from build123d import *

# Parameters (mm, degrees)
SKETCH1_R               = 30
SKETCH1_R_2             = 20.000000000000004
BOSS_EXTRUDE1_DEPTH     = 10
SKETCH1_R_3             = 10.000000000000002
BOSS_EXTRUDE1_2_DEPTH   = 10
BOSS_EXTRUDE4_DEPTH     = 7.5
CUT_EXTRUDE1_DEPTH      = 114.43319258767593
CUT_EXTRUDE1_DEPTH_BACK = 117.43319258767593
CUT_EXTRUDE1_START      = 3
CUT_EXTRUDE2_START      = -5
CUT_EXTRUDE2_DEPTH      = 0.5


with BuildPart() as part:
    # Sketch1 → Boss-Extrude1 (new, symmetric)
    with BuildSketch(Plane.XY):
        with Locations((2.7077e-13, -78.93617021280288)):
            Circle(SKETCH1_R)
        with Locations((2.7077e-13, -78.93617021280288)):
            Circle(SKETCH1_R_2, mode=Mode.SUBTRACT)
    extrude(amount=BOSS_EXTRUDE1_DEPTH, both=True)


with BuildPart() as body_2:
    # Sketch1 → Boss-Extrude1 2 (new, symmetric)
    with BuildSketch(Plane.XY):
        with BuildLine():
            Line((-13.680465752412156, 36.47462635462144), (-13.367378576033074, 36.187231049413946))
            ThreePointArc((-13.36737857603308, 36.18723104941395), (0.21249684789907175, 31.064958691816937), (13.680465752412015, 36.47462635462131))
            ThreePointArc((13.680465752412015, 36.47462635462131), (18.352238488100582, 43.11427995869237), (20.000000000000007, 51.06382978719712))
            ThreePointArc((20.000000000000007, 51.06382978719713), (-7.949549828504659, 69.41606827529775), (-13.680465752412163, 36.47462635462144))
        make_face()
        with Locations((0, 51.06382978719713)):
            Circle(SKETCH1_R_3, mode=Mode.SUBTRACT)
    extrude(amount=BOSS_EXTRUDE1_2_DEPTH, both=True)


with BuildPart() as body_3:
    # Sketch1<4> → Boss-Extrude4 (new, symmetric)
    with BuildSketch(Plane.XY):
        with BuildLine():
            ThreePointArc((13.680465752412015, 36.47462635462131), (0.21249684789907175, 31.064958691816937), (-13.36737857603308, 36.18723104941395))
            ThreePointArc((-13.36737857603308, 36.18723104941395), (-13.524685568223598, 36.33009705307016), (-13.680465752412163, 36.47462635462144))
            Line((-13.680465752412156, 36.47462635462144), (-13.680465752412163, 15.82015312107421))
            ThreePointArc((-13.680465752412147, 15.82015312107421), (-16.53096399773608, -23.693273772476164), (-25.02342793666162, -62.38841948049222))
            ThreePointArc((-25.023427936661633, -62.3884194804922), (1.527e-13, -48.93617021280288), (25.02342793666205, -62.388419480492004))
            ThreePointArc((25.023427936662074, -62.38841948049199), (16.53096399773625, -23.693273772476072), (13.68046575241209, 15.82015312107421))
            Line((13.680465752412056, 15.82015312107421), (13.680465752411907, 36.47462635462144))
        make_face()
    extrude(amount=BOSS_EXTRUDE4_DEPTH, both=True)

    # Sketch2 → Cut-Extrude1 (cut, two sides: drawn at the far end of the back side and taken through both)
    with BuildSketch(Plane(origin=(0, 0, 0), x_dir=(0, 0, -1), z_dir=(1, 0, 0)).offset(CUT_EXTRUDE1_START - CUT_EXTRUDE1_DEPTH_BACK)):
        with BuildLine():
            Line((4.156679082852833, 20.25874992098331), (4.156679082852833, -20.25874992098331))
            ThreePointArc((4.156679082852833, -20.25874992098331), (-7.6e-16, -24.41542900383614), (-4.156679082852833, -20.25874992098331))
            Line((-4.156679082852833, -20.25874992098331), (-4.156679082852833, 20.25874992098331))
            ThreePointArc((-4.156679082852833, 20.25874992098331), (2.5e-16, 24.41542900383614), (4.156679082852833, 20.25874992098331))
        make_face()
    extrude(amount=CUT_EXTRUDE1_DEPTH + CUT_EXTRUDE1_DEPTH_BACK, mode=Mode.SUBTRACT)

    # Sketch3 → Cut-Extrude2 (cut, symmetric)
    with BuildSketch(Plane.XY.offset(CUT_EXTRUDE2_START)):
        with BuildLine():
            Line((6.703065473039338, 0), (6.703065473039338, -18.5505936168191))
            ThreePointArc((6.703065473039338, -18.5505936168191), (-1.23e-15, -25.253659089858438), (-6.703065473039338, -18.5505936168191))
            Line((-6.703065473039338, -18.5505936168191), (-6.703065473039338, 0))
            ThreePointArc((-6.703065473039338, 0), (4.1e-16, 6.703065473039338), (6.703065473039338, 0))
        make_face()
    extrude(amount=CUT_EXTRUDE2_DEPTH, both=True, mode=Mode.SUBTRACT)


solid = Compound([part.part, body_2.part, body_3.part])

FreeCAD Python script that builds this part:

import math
import FreeCAD as App
import Part
import Sketcher
from FreeCAD import Vector
Q = App.Units.Quantity

doc = App.newDocument("Part")
body = doc.addObject("PartDesign::Body", "Body")

# Sketch on XY plane
sketch1 = body.newObject("Sketcher::SketchObject", "Sketch")
sketch1.AttachmentSupport = (doc.getObject("XY_Plane"), [""])
sketch1.MapMode = "FlatFace"
sketch1.addGeometry([
    Part.Circle(Vector(0, -79, 0), Vector(0, 0, 1), 30),
    Part.Circle(Vector(0, -79, 0), Vector(0, 0, 1), 20),
], False)
sketch1.addConstraint([
    Sketcher.Constraint("Coincident", 1, 3, 0, 3),
    Sketcher.Constraint("PointOnObject", 0, 3, -2),
    Sketcher.Constraint("Diameter", 0, Q("60 mm")),
    Sketcher.Constraint("Diameter", 1, Q("40 mm")),
    Sketcher.Constraint("DistanceY", 0, 3, -1, 1, Q("78.93617 mm")),
])
pad1 = body.newObject("PartDesign::Pad", "Pad")
pad1.Profile = sketch1
pad1.Length = 20
pad1.Midplane = True
body2 = doc.addObject("PartDesign::Body", "Body001")

# Sketch on XY plane
sketch2 = body2.newObject("Sketcher::SketchObject", "Sketch001")
sketch2.AttachmentSupport = (doc.getObject("XY_Plane001"), [""])
sketch2.MapMode = "FlatFace"
sketch2.addGeometry([
    Part.LineSegment(Vector(-13.68, 36.47, 0), Vector(-13.37, 36.19, 0)),
    Part.ArcOfCircle(Part.Circle(Vector(0, 51.06, 0), Vector(0, 0, 1), 20), math.radians(-132), math.radians(227)),
    Part.Circle(Vector(0, 51.06, 0), Vector(0, 0, 1), 10),
], False)
sketch2.addConstraint([
    Sketcher.Constraint("Coincident", 0, 1, 1, 2),
    Sketcher.Constraint("Coincident", 1, 1, 0, 2),
    Sketcher.Constraint("Coincident", 2, 3, 1, 3),
    Sketcher.Constraint("PointOnObject", 1, 3, -2),
    Sketcher.Constraint("Diameter", 2, Q("20 mm")),
    Sketcher.Constraint("Radius", 1, Q("20 mm")),
    Sketcher.Constraint("DistanceY", 1, 1, 1, 3, Q("14.876599 mm")),
    Sketcher.Constraint("DistanceY", -1, 1, 1, 3, Q("51.06383 mm")),
    Sketcher.Constraint("Distance", 0, Q("0.424994 mm")),
])
pad2 = body2.newObject("PartDesign::Pad", "Pad001")
pad2.Profile = sketch2
pad2.Length = 20
pad2.Midplane = True
body3 = doc.addObject("PartDesign::Body", "Body002")

# Sketch on XY plane
sketch3 = body3.newObject("Sketcher::SketchObject", "Sketch002")
sketch3.AttachmentSupport = (doc.getObject("XY_Plane002"), [""])
sketch3.MapMode = "FlatFace"
sketch3.addGeometry([
    Part.ArcOfCircle(Part.Circle(Vector(0, 51, 0), Vector(0, 0, 1), 20), math.radians(-133), math.radians(-47)),  # 0
    Part.LineSegment(Vector(-14, 36, 0), Vector(-14, 16, 0)),  # 1
    Part.ArcOfCircle(Part.Circle(Vector(-289, 16, 0), Vector(0, 0, 1), 275), math.radians(-16.5), math.radians(0)),  # 2
    Part.ArcOfCircle(Part.Circle(Vector(0, -79, 0), Vector(0, 0, 1), 30), math.radians(33), math.radians(147)),  # 3
    Part.ArcOfCircle(Part.Circle(Vector(289, 16, 0), Vector(0, 0, 1), 275), math.radians(180), math.radians(196.5)),  # 4
    Part.LineSegment(Vector(14, 16, 0), Vector(14, 36, 0)),  # 5
], False)
sketch3.addConstraint([
    Sketcher.Constraint("Coincident", 0, 1, 1, 1),
    Sketcher.Constraint("Tangent", 1, 2, 2, 2),
    Sketcher.Constraint("Coincident", 2, 1, 3, 2),
    Sketcher.Constraint("Coincident", 3, 1, 4, 2),
    Sketcher.Constraint("Tangent", 4, 1, 5, 1),
    Sketcher.Constraint("Coincident", 5, 2, 0, 2),
    Sketcher.Constraint("Vertical", 1),
    Sketcher.Constraint("Vertical", 5),
    Sketcher.Constraint("Equal", 2, 4),
    Sketcher.Constraint("Symmetric", 2, 3, 4, 3, -2),
    Sketcher.Constraint("PointOnObject", 0, 3, -2),
    Sketcher.Constraint("PointOnObject", 3, 3, -2),
    Sketcher.Constraint("Radius", 0, Q("20 mm")),
    Sketcher.Constraint("Radius", 3, Q("30 mm")),
    Sketcher.Constraint("DistanceY", 3, 3, 0, 3, Q("130 mm")),
    Sketcher.Constraint("Radius", 2, Q("275.291565 mm")),
    Sketcher.Constraint("DistanceY", 1, 2, 1, 1, Q("20.654473 mm")),
    Sketcher.Constraint("DistanceY", -1, 1, 0, 3, Q("51.06383 mm")),
    Sketcher.Constraint("DistanceX", 2, 3, -1, 1, Q("288.972031 mm")),
])
pad3 = body3.newObject("PartDesign::Pad", "Pad002")
pad3.Profile = sketch3
pad3.Length = 15
pad3.Midplane = True

# Sketch on YZ plane
sketch4 = body3.newObject("Sketcher::SketchObject", "Sketch003")
sketch4.AttachmentSupport = (doc.getObject("YZ_Plane002"), [""])
sketch4.MapMode = "FlatFace"
sketch4.AttachmentOffset = App.Placement(Vector(0, 0, 3), App.Rotation())
sketch4.addGeometry([
    Part.LineSegment(Vector(-20.3, -4.2, 0), Vector(20.3, -4.2, 0)),
    Part.ArcOfCircle(Part.Circle(Vector(20.3, 0, 0), Vector(0, 0, 1), 4.2), math.radians(-90), math.radians(90)),
    Part.LineSegment(Vector(20.3, 4.2, 0), Vector(-20.3, 4.2, 0)),
    Part.ArcOfCircle(Part.Circle(Vector(-20.3, 0, 0), Vector(0, 0, 1), 4.2), math.radians(90), math.radians(270)),
], False)
sketch4.addConstraint([
    Sketcher.Constraint("Tangent", 0, 2, 1, 1),
    Sketcher.Constraint("Tangent", 1, 2, 2, 1),
    Sketcher.Constraint("Tangent", 2, 2, 3, 1),
    Sketcher.Constraint("Tangent", 3, 2, 0, 1),
    Sketcher.Constraint("Horizontal", 0),
    Sketcher.Constraint("Horizontal", 2),
    Sketcher.Constraint("Symmetric", 1, 3, 3, 3, -1, 1),
    Sketcher.Constraint("Radius", 1, Q("4.156679 mm")),
    Sketcher.Constraint("DistanceX", 0, 1, 0, 2, Q("40.5175 mm")),
])
pocket1 = body3.newObject("PartDesign::Pocket", "Pocket")
pocket1.Profile = sketch4
pocket1.Type = "ThroughAll"
pocket1.Midplane = True

# Sketch on XY plane
sketch5 = body3.newObject("Sketcher::SketchObject", "Sketch004")
sketch5.AttachmentSupport = (doc.getObject("XY_Plane002"), [""])
sketch5.MapMode = "FlatFace"
sketch5.AttachmentOffset = App.Placement(Vector(0, 0, -5), App.Rotation())
sketch5.addGeometry([
    Part.LineSegment(Vector(7, -19, 0), Vector(7, 0, 0)),
    Part.ArcOfCircle(Part.Circle(Vector(0, 0, 0), Vector(0, 0, 1), 7), math.radians(0), math.radians(180)),
    Part.LineSegment(Vector(-7, 0, 0), Vector(-7, -19, 0)),
    Part.ArcOfCircle(Part.Circle(Vector(0, -19, 0), Vector(0, 0, 1), 7), math.radians(180), math.radians(360)),
], False)
sketch5.addConstraint([
    Sketcher.Constraint("Tangent", 0, 2, 1, 1),
    Sketcher.Constraint("Tangent", 1, 2, 2, 1),
    Sketcher.Constraint("Tangent", 2, 2, 3, 1),
    Sketcher.Constraint("Tangent", 3, 2, 0, 1),
    Sketcher.Constraint("Vertical", 0),
    Sketcher.Constraint("Vertical", 2),
    Sketcher.Constraint("Coincident", 1, 3, -1, 1),
    Sketcher.Constraint("Radius", 1, Q("6.703065 mm")),
    Sketcher.Constraint("DistanceY", 0, 1, 0, 2, Q("18.550594 mm")),
])
pocket2 = body3.newObject("PartDesign::Pocket", "Pocket001")
pocket2.Profile = sketch5
pocket2.Length = 1
pocket2.Midplane = True

doc.recompute()
